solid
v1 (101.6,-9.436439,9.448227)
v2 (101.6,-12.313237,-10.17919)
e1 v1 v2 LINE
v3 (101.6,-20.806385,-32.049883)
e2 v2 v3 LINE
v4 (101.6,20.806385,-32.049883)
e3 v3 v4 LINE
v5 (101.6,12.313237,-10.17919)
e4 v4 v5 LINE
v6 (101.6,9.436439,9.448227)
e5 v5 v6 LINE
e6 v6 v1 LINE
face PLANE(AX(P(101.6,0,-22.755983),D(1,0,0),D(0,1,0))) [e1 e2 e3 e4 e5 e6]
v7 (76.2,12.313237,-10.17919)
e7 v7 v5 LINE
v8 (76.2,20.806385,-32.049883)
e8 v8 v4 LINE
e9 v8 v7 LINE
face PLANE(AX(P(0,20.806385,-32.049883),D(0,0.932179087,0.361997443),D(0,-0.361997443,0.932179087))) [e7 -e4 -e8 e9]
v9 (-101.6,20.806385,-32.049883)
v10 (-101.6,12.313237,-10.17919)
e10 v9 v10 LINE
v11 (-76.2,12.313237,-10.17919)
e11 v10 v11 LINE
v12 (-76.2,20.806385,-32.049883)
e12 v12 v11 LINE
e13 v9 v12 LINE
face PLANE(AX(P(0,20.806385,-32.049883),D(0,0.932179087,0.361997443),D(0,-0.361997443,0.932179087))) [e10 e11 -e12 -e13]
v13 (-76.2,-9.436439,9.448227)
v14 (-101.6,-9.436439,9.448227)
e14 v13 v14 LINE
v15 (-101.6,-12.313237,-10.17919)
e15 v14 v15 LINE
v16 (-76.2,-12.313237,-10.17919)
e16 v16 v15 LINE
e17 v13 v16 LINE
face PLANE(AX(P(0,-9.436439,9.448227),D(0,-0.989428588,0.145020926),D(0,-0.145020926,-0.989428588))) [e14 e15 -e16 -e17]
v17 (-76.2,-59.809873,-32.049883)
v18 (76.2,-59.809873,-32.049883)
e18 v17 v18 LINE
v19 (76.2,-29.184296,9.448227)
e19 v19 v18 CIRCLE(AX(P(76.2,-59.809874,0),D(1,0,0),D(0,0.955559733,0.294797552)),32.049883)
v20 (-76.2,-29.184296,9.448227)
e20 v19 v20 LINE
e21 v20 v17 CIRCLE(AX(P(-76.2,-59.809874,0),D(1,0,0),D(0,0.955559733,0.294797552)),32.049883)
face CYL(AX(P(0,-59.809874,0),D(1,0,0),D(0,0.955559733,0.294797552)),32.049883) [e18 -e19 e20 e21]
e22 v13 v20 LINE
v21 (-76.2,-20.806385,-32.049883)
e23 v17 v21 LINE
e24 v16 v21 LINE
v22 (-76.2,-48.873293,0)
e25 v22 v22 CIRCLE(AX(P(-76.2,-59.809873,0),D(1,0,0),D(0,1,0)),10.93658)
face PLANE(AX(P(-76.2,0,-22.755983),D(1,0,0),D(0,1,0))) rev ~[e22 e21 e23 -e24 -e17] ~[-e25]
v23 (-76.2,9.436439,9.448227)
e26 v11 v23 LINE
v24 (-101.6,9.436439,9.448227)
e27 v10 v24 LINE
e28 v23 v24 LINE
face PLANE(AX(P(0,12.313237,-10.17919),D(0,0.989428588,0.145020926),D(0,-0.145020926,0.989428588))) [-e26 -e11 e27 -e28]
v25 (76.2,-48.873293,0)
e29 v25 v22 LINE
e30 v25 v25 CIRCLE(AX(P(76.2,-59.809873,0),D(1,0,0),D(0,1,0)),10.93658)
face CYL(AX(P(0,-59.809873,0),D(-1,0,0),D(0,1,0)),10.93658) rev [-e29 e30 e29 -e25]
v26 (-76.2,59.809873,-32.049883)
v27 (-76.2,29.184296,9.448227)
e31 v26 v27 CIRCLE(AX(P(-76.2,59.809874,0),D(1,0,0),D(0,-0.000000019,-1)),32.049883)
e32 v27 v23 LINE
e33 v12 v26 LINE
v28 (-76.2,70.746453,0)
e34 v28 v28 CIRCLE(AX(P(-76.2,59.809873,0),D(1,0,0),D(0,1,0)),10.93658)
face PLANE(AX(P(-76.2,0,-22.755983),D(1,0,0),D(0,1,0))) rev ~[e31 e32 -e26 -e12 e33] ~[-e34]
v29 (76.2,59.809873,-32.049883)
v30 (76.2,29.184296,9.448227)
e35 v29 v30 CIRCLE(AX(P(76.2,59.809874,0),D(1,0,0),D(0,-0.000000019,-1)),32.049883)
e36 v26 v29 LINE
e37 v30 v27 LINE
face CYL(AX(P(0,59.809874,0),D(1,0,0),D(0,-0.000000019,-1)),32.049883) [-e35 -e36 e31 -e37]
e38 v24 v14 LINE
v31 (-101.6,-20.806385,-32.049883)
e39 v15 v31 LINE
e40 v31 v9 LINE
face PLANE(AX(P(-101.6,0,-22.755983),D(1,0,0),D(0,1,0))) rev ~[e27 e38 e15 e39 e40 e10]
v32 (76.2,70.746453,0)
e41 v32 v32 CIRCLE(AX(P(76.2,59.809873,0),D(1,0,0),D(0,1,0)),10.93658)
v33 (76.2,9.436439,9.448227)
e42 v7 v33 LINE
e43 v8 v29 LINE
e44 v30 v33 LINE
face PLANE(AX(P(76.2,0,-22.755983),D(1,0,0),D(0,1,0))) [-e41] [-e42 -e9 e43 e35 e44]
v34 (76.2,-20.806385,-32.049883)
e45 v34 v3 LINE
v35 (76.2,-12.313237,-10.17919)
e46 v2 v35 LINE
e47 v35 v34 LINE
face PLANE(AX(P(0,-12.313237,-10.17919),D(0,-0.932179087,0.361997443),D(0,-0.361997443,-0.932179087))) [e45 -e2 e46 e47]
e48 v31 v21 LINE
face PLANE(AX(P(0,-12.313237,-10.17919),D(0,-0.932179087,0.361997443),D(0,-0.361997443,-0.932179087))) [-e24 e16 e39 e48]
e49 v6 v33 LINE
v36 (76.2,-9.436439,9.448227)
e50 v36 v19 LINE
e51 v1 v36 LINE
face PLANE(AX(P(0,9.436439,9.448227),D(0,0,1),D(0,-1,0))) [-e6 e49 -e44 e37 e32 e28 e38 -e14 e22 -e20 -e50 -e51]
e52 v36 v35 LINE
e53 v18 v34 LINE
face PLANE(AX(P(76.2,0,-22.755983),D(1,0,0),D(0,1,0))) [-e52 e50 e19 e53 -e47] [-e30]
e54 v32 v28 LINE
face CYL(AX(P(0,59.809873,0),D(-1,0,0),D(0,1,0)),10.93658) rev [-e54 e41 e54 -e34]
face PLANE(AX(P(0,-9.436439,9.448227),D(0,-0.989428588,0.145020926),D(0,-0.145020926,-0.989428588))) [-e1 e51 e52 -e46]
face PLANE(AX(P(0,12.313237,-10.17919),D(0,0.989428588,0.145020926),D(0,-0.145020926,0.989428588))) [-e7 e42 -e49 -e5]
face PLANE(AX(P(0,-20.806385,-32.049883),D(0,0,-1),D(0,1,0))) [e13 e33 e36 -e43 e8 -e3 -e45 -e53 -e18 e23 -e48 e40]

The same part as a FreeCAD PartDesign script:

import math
import FreeCAD as App
import Part
import Sketcher
Q = App.Units.Quantity


def add_polygon(sketch, points):
    """Adds a closed chain of lines whose ends are joined by coincident constraints."""
    first, n = sketch.GeometryCount, len(points)
    for a, b in zip(points, points[1:] + points[:1]):
        sketch.addGeometry(Part.LineSegment(App.Vector(*a, 0), App.Vector(*b, 0)), False)
    for i in range(n):
        sketch.addConstraint(Sketcher.Constraint("Coincident", first + i, 2, first + (i + 1) % n, 1))

doc = App.newDocument("Part")
body = doc.addObject("PartDesign::Body", "Body")

# Sketch on YZ plane
sketch1 = body.newObject("Sketcher::SketchObject", "Sketch")
sketch1.AttachmentSupport = (doc.getObject("YZ_Plane"), [""])
sketch1.MapMode = "FlatFace"
sketch1.addGeometry([
    Part.ArcOfCircle(Part.Circle(App.Vector(-60, 0, 0), App.Vector(0, 0, 1), 32), math.radians(17), math.radians(270)),  # 0
    Part.LineSegment(App.Vector(-60, -32, 0), App.Vector(60, -32, 0)),  # 1
    Part.ArcOfCircle(Part.Circle(App.Vector(60, 0, 0), App.Vector(0, 0, 1), 32), math.radians(-90), math.radians(163)),  # 2
    Part.LineSegment(App.Vector(29, 9, 0), App.Vector(-29, 9, 0)),  # 3
    Part.Circle(App.Vector(-60, 0, 0), App.Vector(0, 0, 1), 11),  # 4
    Part.Circle(App.Vector(60, 0, 0), App.Vector(0, 0, 1), 11),  # 5
], False)
sketch1.addConstraint([
    Sketcher.Constraint("Tangent", 0, 2, 1, 1),
    Sketcher.Constraint("Tangent", 1, 2, 2, 1),
    Sketcher.Constraint("Coincident", 2, 2, 3, 1),
    Sketcher.Constraint("Coincident", 3, 2, 0, 1),
    Sketcher.Constraint("Horizontal", 1),
    Sketcher.Constraint("Horizontal", 3),
    Sketcher.Constraint("Coincident", 4, 3, 0, 3),
    Sketcher.Constraint("Coincident", 5, 3, 2, 3),
    Sketcher.Constraint("Equal", 0, 2),
    Sketcher.Constraint("Equal", 4, 5),
    Sketcher.Constraint("Symmetric", 0, 3, 2, 3, -1, 1),
    Sketcher.Constraint("Diameter", 4, 21.87316),
    Sketcher.Constraint("Radius", 0, 32.049883),
    Sketcher.Constraint("DistanceX", 1, 1, 1, 2, 119.619746),
    Sketcher.Constraint("DistanceX", 3, 2, 3, 1, 58.368592),
])
pad1 = body.newObject("PartDesign::Pad", "Pad")
pad1.Profile = sketch1
pad1.Length = Q("6 in")
pad1.Midplane = True

# Sketch on YZ plane
sketch2 = body.newObject("Sketcher::SketchObject", "Sketch001")
sketch2.AttachmentSupport = (doc.getObject("YZ_Plane"), [""])
sketch2.MapMode = "FlatFace"
add_polygon(sketch2, [(-12, -10), (-21, -32), (21, -32), (12, -10), (9, 9), (-9, 9)])  # lines 0-5
sketch2.addConstraint([
    Sketcher.Constraint("Horizontal", 1),
    Sketcher.Constraint("Horizontal", 4),
    Sketcher.Constraint("Symmetric", 2, 2, 5, 2, -2),
    Sketcher.Constraint("Equal", 0, 2),
    Sketcher.Constraint("Equal", 3, 5),
    Sketcher.Constraint("Distance", 0, 23.461901),
    Sketcher.Constraint("DistanceX", 1, 1, 1, 2, 41.61277),
    Sketcher.Constraint("DistanceX", 4, 2, 4, 1, 18.872878),
    Sketcher.Constraint("DistanceX", 3, 2, 2, 2, 2.876798),
    Sketcher.Constraint("DistanceY", 2, 2, -1, 1, 10.17919),
    Sketcher.Constraint("DistanceY", 1, 2, 3, 2, 41.49811),
])
pad2 = body.newObject("PartDesign::Pad", "Pad001")
pad2.Profile = sketch2
pad2.Length = Q("8 in")
pad2.Midplane = True

doc.recompute()
